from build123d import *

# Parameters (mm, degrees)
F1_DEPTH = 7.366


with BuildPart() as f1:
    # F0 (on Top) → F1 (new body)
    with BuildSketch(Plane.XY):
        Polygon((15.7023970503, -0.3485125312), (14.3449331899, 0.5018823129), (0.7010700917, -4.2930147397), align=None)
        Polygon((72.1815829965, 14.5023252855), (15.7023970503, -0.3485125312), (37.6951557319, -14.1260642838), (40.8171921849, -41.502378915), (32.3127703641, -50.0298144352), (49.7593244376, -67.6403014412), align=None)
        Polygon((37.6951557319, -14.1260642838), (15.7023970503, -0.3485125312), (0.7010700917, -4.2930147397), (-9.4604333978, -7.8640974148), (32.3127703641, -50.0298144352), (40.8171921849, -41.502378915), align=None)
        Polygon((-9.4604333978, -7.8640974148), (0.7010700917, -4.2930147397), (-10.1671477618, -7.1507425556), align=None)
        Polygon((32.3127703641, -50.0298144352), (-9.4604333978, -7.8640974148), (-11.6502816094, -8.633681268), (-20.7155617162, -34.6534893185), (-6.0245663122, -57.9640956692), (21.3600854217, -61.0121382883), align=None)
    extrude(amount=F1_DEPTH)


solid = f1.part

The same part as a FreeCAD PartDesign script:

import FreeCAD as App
import Part
import Sketcher

V = App.Vector
Q = App.Units.Quantity

doc = App.newDocument("Part")
body = doc.addObject("PartDesign::Body", "Body")

# Sketch on XY plane
sketch1 = body.newObject("Sketcher::SketchObject", "Sketch")
sketch1.AttachmentSupport = (doc.getObject("XY_Plane"), [""])
sketch1.MapMode = "FlatFace"
sketch1.addGeometry(Part.LineSegment(V(15.702397, -0.348513, 0), V(14.344933, 0.501882, 0)), False)
sketch1.addGeometry(Part.LineSegment(V(14.344933, 0.501882, 0), V(0.70107, -4.293015, 0)), False)
sketch1.addGeometry(Part.LineSegment(V(0.70107, -4.293015, 0), V(-10.167148, -7.150743, 0)), False)
sketch1.addGeometry(Part.LineSegment(V(-10.167148, -7.150743, 0), V(-9.460433, -7.864097, 0)), False)
sketch1.addGeometry(Part.LineSegment(V(-9.460433, -7.864097, 0), V(-11.650282, -8.633681, 0)), False)
sketch1.addGeometry(Part.LineSegment(V(-11.650282, -8.633681, 0), V(-20.715562, -34.653489, 0)), False)
sketch1.addGeometry(Part.LineSegment(V(-20.715562, -34.653489, 0), V(-6.024566, -57.964096, 0)), False)
sketch1.addGeometry(Part.LineSegment(V(-6.024566, -57.964096, 0), V(21.360085, -61.012138, 0)), False)
sketch1.addGeometry(Part.LineSegment(V(21.360085, -61.012138, 0), V(32.31277, -50.029814, 0)), False)
sketch1.addGeometry(Part.LineSegment(V(32.31277, -50.029814, 0), V(49.759324, -67.640301, 0)), False)
sketch1.addGeometry(Part.LineSegment(V(49.759324, -67.640301, 0), V(72.181583, 14.502325, 0)), False)
sketch1.addGeometry(Part.LineSegment(V(72.181583, 14.502325, 0), V(15.702397, -0.348513, 0)), False)
sketch1.addConstraint(Sketcher.Constraint("Coincident", 0, 2, 1, 1))
sketch1.addConstraint(Sketcher.Constraint("Coincident", 1, 2, 2, 1))
sketch1.addConstraint(Sketcher.Constraint("Coincident", 2, 2, 3, 1))
sketch1.addConstraint(Sketcher.Constraint("Coincident", 3, 2, 4, 1))
sketch1.addConstraint(Sketcher.Constraint("Coincident", 4, 2, 5, 1))
sketch1.addConstraint(Sketcher.Constraint("Coincident", 5, 2, 6, 1))
sketch1.addConstraint(Sketcher.Constraint("Coincident", 6, 2, 7, 1))
sketch1.addConstraint(Sketcher.Constraint("Coincident", 7, 2, 8, 1))
sketch1.addConstraint(Sketcher.Constraint("Coincident", 8, 2, 9, 1))
sketch1.addConstraint(Sketcher.Constraint("Coincident", 9, 2, 10, 1))
sketch1.addConstraint(Sketcher.Constraint("Coincident", 10, 2, 11, 1))
sketch1.addConstraint(Sketcher.Constraint("Coincident", 11, 2, 0, 1))
sketch1.addConstraint(Sketcher.Constraint("DistanceY", 9, 2, -1, 1, Q("67.640301 mm")))
sketch1.addConstraint(Sketcher.Constraint("DistanceY", 6, 2, 3, 2, Q("50.099998 mm")))
sketch1.addConstraint(Sketcher.Constraint("DistanceX", 1, 2, 8, 2, Q("31.6117 mm")))
sketch1.addConstraint(Sketcher.Constraint("DistanceY", 8, 2, 1, 2, Q("45.7368 mm")))
sketch1.addConstraint(Sketcher.Constraint("Distance", 2, Q("11.23765 mm")))
sketch1.addConstraint(Sketcher.Constraint("Distance", 3, Q("1.004152 mm")))
sketch1.addConstraint(Sketcher.Constraint("Distance", 4, Q("2.321141 mm")))
sketch1.addConstraint(Sketcher.Constraint("Distance", 5, Q("27.55376 mm")))
sketch1.addConstraint(Sketcher.Constraint("Distance", 6, Q("27.55376 mm")))
sketch1.addConstraint(Sketcher.Constraint("Distance", 7, Q("27.55376 mm")))
sketch1.addConstraint(Sketcher.Constraint("DistanceX", -1, 1, 1, 2, Q("0.70107 mm")))
sketch1.addConstraint(Sketcher.Constraint("DistanceX", 4, 2, -1, 1, Q("11.650282 mm")))
sketch1.addConstraint(Sketcher.Constraint("DistanceY", 4, 2, -1, 1, Q("8.633681 mm")))
sketch1.addConstraint(Sketcher.Constraint("DistanceX", 5, 2, -1, 1, Q("20.715562 mm")))
sketch1.addConstraint(Sketcher.Constraint("DistanceY", 7, 2, -1, 1, Q("61.012138 mm")))
sketch1.addConstraint(Sketcher.Constraint("DistanceX", 2, 2, 0, 2, Q("24.512081 mm")))
sketch1.addConstraint(Sketcher.Constraint("DistanceY", 3, 2, 0, 2, Q("8.36598 mm")))
sketch1.addConstraint(Sketcher.Constraint("DistanceY", 4, 2, 2, 2, Q("1.482939 mm")))
sketch1.addConstraint(Sketcher.Constraint("DistanceX", 4, 2, 3, 2, Q("2.189848 mm")))
sketch1.addConstraint(Sketcher.Constraint("DistanceX", 7, 2, 9, 2, Q("28.399239 mm")))
sketch1.addConstraint(Sketcher.Constraint("DistanceX", 0, 2, 10, 2, Q("57.83665 mm")))
sketch1.addConstraint(Sketcher.Constraint("DistanceY", 1, 2, 10, 2, Q("18.79534 mm")))
sketch1.addConstraint(Sketcher.Constraint("DistanceX", 3, 2, 11, 2, Q("25.16283 mm")))
sketch1.addConstraint(Sketcher.Constraint("DistanceY", 2, 2, 11, 2, Q("6.80223 mm")))
pad1 = body.newObject("PartDesign::Pad", "Pad")
pad1.Profile = sketch1
pad1.Length = Q("0.29 in")

doc.recompute()
